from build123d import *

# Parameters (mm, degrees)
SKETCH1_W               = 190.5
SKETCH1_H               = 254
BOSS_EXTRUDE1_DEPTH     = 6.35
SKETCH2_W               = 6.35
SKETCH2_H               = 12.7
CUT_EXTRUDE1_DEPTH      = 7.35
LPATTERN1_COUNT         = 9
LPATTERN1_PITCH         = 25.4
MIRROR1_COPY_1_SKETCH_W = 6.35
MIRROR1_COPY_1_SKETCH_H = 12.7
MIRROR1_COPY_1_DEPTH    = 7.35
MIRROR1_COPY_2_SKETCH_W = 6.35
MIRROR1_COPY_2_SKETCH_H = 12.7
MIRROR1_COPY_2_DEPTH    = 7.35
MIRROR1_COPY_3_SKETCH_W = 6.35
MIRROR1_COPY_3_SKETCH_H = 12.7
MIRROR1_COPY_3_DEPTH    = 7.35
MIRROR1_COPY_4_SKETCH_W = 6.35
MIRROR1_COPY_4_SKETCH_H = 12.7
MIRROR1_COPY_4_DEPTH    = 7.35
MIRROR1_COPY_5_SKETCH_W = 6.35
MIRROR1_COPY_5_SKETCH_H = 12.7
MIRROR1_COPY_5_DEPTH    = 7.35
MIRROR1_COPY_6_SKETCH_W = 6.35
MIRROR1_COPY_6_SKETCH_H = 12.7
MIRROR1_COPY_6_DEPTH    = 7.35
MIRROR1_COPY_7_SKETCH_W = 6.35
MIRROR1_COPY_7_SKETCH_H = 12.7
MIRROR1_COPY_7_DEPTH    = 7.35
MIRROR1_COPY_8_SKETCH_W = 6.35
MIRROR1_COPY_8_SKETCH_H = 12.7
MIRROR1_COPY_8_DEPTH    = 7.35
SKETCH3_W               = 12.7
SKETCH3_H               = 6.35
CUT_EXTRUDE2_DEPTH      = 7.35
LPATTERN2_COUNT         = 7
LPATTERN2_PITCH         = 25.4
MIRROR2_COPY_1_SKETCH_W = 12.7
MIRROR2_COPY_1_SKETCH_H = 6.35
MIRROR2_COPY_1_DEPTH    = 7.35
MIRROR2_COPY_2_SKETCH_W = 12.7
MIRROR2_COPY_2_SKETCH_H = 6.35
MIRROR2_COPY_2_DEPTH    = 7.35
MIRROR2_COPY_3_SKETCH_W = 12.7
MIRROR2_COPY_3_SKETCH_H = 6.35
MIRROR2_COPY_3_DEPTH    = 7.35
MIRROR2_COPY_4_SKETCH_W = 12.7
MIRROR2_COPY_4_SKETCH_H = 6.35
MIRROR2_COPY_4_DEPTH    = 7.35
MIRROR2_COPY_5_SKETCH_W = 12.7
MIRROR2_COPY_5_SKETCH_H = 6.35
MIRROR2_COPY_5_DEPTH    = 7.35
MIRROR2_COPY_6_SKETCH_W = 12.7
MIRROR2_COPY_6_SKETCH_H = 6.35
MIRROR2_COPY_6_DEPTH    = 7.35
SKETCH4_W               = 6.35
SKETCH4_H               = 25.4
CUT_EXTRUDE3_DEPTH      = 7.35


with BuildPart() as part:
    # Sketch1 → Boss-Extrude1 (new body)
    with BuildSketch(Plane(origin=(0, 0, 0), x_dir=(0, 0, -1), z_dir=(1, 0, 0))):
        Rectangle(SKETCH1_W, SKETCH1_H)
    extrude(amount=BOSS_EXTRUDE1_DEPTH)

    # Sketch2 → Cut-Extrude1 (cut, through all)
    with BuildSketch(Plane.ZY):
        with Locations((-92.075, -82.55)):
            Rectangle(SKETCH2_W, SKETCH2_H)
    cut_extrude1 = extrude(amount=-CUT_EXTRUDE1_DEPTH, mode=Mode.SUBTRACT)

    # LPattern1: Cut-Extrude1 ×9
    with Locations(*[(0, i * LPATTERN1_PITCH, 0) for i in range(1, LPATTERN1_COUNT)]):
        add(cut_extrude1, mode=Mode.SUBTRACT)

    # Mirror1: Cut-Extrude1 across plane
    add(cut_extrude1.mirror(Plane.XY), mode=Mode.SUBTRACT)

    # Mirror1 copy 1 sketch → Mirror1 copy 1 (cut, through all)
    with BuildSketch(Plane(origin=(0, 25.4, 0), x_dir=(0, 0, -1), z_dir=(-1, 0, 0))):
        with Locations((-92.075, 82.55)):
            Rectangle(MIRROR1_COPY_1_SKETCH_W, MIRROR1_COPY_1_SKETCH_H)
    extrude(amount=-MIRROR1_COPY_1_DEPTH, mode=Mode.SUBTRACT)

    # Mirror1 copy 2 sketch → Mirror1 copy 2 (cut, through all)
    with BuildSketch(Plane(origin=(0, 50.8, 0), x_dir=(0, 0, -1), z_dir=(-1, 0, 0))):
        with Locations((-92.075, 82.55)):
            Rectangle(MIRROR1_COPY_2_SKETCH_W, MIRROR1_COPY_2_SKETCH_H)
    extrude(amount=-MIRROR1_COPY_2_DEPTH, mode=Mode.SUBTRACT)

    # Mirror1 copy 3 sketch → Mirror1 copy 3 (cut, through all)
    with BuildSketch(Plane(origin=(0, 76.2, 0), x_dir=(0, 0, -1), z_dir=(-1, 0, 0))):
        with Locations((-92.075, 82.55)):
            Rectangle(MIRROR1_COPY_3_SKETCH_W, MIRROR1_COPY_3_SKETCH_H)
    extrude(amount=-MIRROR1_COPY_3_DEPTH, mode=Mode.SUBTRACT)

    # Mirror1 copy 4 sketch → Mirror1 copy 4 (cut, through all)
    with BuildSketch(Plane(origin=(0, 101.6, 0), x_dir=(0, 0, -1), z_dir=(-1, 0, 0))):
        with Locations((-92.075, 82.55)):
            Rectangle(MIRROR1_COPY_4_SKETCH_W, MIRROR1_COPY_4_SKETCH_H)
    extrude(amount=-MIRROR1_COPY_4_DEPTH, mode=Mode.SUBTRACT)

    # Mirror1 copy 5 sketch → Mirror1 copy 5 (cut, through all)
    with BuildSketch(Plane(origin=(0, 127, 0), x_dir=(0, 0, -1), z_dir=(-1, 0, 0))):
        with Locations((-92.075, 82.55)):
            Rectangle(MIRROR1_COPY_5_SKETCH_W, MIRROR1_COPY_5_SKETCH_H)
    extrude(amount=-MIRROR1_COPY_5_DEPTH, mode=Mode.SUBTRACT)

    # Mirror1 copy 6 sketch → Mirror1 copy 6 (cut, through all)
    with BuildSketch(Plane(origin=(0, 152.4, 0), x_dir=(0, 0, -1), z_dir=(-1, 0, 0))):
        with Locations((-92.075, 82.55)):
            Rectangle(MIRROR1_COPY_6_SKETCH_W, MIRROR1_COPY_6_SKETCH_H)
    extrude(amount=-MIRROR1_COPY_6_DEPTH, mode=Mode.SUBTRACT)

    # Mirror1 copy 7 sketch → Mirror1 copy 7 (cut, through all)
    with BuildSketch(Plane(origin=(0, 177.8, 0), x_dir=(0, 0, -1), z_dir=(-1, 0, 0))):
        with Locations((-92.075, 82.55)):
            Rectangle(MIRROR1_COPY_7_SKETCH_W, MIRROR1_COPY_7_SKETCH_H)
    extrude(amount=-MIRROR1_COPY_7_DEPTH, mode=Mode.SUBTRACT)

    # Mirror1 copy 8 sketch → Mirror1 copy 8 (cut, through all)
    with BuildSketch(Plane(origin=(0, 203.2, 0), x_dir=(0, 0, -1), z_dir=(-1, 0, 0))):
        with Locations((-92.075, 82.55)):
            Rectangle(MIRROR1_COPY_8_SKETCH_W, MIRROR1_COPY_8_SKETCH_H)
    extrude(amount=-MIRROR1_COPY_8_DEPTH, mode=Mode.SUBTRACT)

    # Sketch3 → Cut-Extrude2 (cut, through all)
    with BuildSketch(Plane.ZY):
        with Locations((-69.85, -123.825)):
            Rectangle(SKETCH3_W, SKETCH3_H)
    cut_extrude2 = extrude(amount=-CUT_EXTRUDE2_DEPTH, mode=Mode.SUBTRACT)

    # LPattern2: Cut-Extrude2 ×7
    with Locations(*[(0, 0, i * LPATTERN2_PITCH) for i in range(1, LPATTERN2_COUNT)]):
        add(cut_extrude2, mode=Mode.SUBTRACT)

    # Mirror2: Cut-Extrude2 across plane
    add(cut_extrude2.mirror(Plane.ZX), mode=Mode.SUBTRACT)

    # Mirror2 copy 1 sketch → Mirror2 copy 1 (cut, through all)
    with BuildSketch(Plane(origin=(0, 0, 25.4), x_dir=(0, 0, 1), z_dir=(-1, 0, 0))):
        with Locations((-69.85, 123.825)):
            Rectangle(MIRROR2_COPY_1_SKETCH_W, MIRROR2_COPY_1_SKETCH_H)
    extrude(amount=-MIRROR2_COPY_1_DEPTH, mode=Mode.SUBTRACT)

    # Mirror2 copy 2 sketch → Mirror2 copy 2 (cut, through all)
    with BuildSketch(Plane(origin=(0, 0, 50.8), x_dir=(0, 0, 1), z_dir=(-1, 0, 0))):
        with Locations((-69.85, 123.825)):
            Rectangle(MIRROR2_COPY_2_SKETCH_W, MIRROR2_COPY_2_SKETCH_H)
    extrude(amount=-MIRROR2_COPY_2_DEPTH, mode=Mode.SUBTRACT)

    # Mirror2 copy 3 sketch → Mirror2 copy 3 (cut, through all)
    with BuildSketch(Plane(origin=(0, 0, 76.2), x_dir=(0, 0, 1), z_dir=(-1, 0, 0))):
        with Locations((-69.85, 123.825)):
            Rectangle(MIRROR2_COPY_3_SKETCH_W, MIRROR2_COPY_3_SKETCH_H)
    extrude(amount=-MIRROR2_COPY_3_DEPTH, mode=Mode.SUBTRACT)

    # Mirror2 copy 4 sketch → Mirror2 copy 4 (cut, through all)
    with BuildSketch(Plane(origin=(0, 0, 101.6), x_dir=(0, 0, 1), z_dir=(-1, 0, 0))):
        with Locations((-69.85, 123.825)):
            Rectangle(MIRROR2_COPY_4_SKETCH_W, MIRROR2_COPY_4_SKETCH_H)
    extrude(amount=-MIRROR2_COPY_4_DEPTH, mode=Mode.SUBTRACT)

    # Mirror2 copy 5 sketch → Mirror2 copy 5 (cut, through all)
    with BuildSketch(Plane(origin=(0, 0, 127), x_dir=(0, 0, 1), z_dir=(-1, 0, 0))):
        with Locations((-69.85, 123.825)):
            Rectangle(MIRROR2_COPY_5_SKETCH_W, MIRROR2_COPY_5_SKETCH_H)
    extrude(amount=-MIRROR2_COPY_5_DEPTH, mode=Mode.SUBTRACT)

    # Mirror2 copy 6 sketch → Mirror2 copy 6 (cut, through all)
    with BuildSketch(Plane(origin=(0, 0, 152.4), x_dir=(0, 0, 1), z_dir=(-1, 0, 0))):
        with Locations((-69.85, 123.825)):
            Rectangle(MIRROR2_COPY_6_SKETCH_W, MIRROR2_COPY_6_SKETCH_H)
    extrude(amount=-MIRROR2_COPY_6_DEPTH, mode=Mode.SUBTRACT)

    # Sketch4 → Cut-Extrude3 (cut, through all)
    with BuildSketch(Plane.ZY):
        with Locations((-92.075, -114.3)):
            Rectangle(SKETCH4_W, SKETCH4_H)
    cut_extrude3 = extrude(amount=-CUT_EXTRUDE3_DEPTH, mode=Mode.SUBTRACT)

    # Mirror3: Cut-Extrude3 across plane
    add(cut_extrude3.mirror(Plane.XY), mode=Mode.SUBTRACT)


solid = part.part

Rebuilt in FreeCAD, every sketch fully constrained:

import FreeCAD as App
import Part
import Sketcher
from FreeCAD import Vector
Q = App.Units.Quantity


def add_polygon(sketch, points):
    """Adds a closed chain of lines whose ends are joined by coincident constraints."""
    first, n = sketch.GeometryCount, len(points)
    for a, b in zip(points, points[1:] + points[:1]):
        sketch.addGeometry(Part.LineSegment(App.Vector(*a, 0), App.Vector(*b, 0)), False)
    for i in range(n):
        sketch.addConstraint(Sketcher.Constraint("Coincident", first + i, 2, first + (i + 1) % n, 1))

doc = App.newDocument("Part")
params = doc.addObject("Spreadsheet::Sheet", "Params")
for row, (alias, value) in enumerate([
    ("sketch1_width", "10 in"),
    ("sketch1_height", "7.5 in"),
    ("pad1_length", "0.25 in"),
    ("sketch2_width", "0.5 in"),
    ("sketch2_height", "0.25 in"),
    ("linearpattern_pitch", "1 in"),
    ("sketch3_width", "0.5 in"),
    ("sketch3_height", "0.25 in"),
    ("sketch4_width", "0.5 in"),
    ("sketch4_height", "0.25 in"),
    ("sketch5_width", "0.5 in"),
    ("sketch5_height", "0.25 in"),
    ("sketch6_width", "0.5 in"),
    ("sketch6_height", "0.25 in"),
    ("sketch7_width", "0.5 in"),
    ("sketch7_height", "0.25 in"),
    ("sketch8_width", "0.5 in"),
    ("sketch8_height", "0.25 in"),
    ("sketch9_width", "0.5 in"),
    ("sketch9_height", "0.25 in"),
    ("sketch10_width", "0.5 in"),
    ("sketch10_height", "0.25 in"),
    ("sketch11_height", "0.5 in"),
    ("sketch11_width", "0.25 in"),
    ("linearpattern2_pitch", "1 in"),
    ("sketch12_height", "0.5 in"),
    ("sketch12_width", "0.25 in"),
    ("sketch13_height", "0.5 in"),
    ("sketch13_width", "0.25 in"),
    ("sketch14_height", "0.5 in"),
    ("sketch14_width", "0.25 in"),
    ("sketch15_height", "0.5 in"),
    ("sketch15_width", "0.25 in"),
    ("sketch16_height", "0.5 in"),
    ("sketch16_width", "0.25 in"),
    ("sketch17_height", "0.5 in"),
    ("sketch17_width", "0.25 in"),
    ("sketch18_width", "1 in"),
    ("sketch18_height", "0.25 in"),
], start=1):
    params.set(f"A{row}", alias)
    params.set(f"B{row}", "=" + value)
    params.setAlias(f"B{row}", alias)

body = doc.addObject("PartDesign::Body", "Body")

# Sketch on YZ plane
sketch1 = doc.addObject("Sketcher::SketchObject", "Sketch")
body.addObject(sketch1)
sketch1.AttachmentSupport = (doc.YZ_Plane, [""])
sketch1.MapMode = "FlatFace"
add_polygon(sketch1, [(127, 95), (-127, 95), (-127, -95), (127, -95)])  # lines 0-3
sketch1.addConstraint([
    Sketcher.Constraint("Horizontal", 0),
    Sketcher.Constraint("Vertical", 1),
    Sketcher.Constraint("Horizontal", 2),
    Sketcher.Constraint("Vertical", 3),
    Sketcher.Constraint("Symmetric", 0, 2, 2, 2, -1, 1),
    Sketcher.Constraint("DistanceX", 0, 2, 0, 1, Q("10 in")),
    Sketcher.Constraint("DistanceY", 1, 2, 1, 1, Q("7.5 in")),
])
sketch1.setExpression("Constraints[9]", "Params.sketch1_width")
sketch1.setExpression("Constraints[10]", "Params.sketch1_height")
pad1 = doc.addObject("PartDesign::Pad", "Pad")
body.addObject(pad1)
pad1.Profile = sketch1
pad1.setExpression("Length", "Params.pad1_length")

# Sketch on YZ plane
sketch2 = doc.addObject("Sketcher::SketchObject", "Sketch001")
body.addObject(sketch2)
sketch2.AttachmentSupport = (doc.YZ_Plane, [""])
sketch2.MapMode = "FlatFace"
add_polygon(sketch2, [(-76, -95), (-89, -95), (-89, -89), (-76, -89)])  # lines 0-3
sketch2.addConstraint([
    Sketcher.Constraint("Horizontal", 0),
    Sketcher.Constraint("Vertical", 1),
    Sketcher.Constraint("Horizontal", 2),
    Sketcher.Constraint("Vertical", 3),
    Sketcher.Constraint("DistanceX", 0, 2, 0, 1, Q("0.5 in")),
    Sketcher.Constraint("DistanceX", 2, 2, -1, 1, Q("3 in")),
    Sketcher.Constraint("DistanceY", 1, 1, 1, 2, Q("0.25 in")),
    Sketcher.Constraint("DistanceY", 1, 2, -1, 1, Q("3.5 in")),
])
sketch2.setExpression("Constraints[8]", "Params.sketch2_width")
sketch2.setExpression("Constraints[10]", "Params.sketch2_height")
pocket1 = doc.addObject("PartDesign::Pocket", "Pocket")
body.addObject(pocket1)
pocket1.Profile = sketch2
pocket1.Type = "ThroughAll"
pocket1.Reversed = True
doc.recompute()

linearpattern = doc.addObject("PartDesign::LinearPattern", "LinearPattern")
body.addObject(linearpattern)
linearpattern.Originals = [pocket1]
linearpattern.Direction = (doc.Y_Axis, [""])
linearpattern.Mode = "offset"
linearpattern.setExpression("Offset", "Params.linearpattern_pitch")
linearpattern.Occurrences = 9
body.Tip = linearpattern
doc.recompute()

mirrored = doc.addObject("PartDesign::Mirrored", "Mirrored")
body.addObject(mirrored)
mirrored.Originals = [pocket1]
mirrored.MirrorPlane = (doc.XY_Plane, [""])
body.Tip = mirrored

# Sketch on YZ plane
sketch3 = doc.addObject("Sketcher::SketchObject", "Sketch002")
body.addObject(sketch3)
sketch3.AttachmentSupport = (doc.YZ_Plane, [""])
sketch3.MapMode = "FlatFace"
add_polygon(sketch3, [(-64, 95), (-51, 95), (-51, 89), (-64, 89)])  # lines 0-3
sketch3.addConstraint([
    Sketcher.Constraint("Horizontal", 0),
    Sketcher.Constraint("Vertical", 1),
    Sketcher.Constraint("Horizontal", 2),
    Sketcher.Constraint("Vertical", 3),
    Sketcher.Constraint("DistanceX", 0, 1, 0, 2, Q("0.5 in")),
    Sketcher.Constraint("DistanceX", 0, 2, -1, 1, Q("2 in")),
    Sketcher.Constraint("DistanceY", 1, 2, 1, 1, Q("0.25 in")),
    Sketcher.Constraint("DistanceY", -1, 1, 1, 2, Q("3.5 in")),
])
sketch3.setExpression("Constraints[8]", "Params.sketch3_width")
sketch3.setExpression("Constraints[10]", "Params.sketch3_height")
pocket2 = doc.addObject("PartDesign::Pocket", "Pocket001")
body.addObject(pocket2)
pocket2.Profile = sketch3
pocket2.Type = "ThroughAll"
pocket2.Reversed = True

# Sketch on YZ plane
sketch4 = doc.addObject("Sketcher::SketchObject", "Sketch003")
body.addObject(sketch4)
sketch4.AttachmentSupport = (doc.YZ_Plane, [""])
sketch4.MapMode = "FlatFace"
add_polygon(sketch4, [(-38, 95), (-25, 95), (-25, 89), (-38, 89)])  # lines 0-3
sketch4.addConstraint([
    Sketcher.Constraint("Horizontal", 0),
    Sketcher.Constraint("Vertical", 1),
    Sketcher.Constraint("Horizontal", 2),
    Sketcher.Constraint("Vertical", 3),
    Sketcher.Constraint("DistanceX", 0, 1, 0, 2, Q("0.5 in")),
    Sketcher.Constraint("DistanceX", 0, 2, -1, 1, Q("1 in")),
    Sketcher.Constraint("DistanceY", 1, 2, 1, 1, Q("0.25 in")),
    Sketcher.Constraint("DistanceY", -1, 1, 1, 2, Q("3.5 in")),
])
sketch4.setExpression("Constraints[8]", "Params.sketch4_width")
sketch4.setExpression("Constraints[10]", "Params.sketch4_height")
pocket3 = doc.addObject("PartDesign::Pocket", "Pocket002")
body.addObject(pocket3)
pocket3.Profile = sketch4
pocket3.Type = "ThroughAll"
pocket3.Reversed = True

# Sketch on YZ plane
sketch5 = doc.addObject("Sketcher::SketchObject", "Sketch004")
body.addObject(sketch5)
sketch5.AttachmentSupport = (doc.YZ_Plane, [""])
sketch5.MapMode = "FlatFace"
add_polygon(sketch5, [(-13, 95), (0, 95), (0, 89), (-13, 89)])  # lines 0-3
sketch5.addConstraint([
    Sketcher.Constraint("Horizontal", 0),
    Sketcher.Constraint("Vertical", 1),
    Sketcher.Constraint("Horizontal", 2),
    Sketcher.Constraint("Vertical", 3),
    Sketcher.Constraint("PointOnObject", 0, 2, -2),
    Sketcher.Constraint("DistanceX", 0, 1, 0, 2, Q("0.5 in")),
    Sketcher.Constraint("DistanceY", 1, 2, 1, 1, Q("0.25 in")),
    Sketcher.Constraint("DistanceY", -1, 1, 1, 2, Q("3.5 in")),
])
sketch5.setExpression("Constraints[9]", "Params.sketch5_width")
sketch5.setExpression("Constraints[10]", "Params.sketch5_height")
pocket4 = doc.addObject("PartDesign::Pocket", "Pocket003")
body.addObject(pocket4)
pocket4.Profile = sketch5
pocket4.Type = "ThroughAll"
pocket4.Reversed = True

# Sketch on YZ plane
sketch6 = doc.addObject("Sketcher::SketchObject", "Sketch005")
body.addObject(sketch6)
sketch6.AttachmentSupport = (doc.YZ_Plane, [""])
sketch6.MapMode = "FlatFace"
add_polygon(sketch6, [(13, 95), (25, 95), (25, 89), (13, 89)])  # lines 0-3
sketch6.addConstraint([
    Sketcher.Constraint("Horizontal", 0),
    Sketcher.Constraint("Vertical", 1),
    Sketcher.Constraint("Horizontal", 2),
    Sketcher.Constraint("Vertical", 3),
    Sketcher.Constraint("DistanceX", 0, 1, 0, 2, Q("0.5 in")),
    Sketcher.Constraint("DistanceX", -1, 1, 0, 2, Q("1 in")),
    Sketcher.Constraint("DistanceY", 1, 2, 1, 1, Q("0.25 in")),
    Sketcher.Constraint("DistanceY", -1, 1, 1, 2, Q("3.5 in")),
])
sketch6.setExpression("Constraints[8]", "Params.sketch6_width")
sketch6.setExpression("Constraints[10]", "Params.sketch6_height")
pocket5 = doc.addObject("PartDesign::Pocket", "Pocket004")
body.addObject(pocket5)
pocket5.Profile = sketch6
pocket5.Type = "ThroughAll"
pocket5.Reversed = True

# Sketch on YZ plane
sketch7 = doc.addObject("Sketcher::SketchObject", "Sketch006")
body.addObject(sketch7)
sketch7.AttachmentSupport = (doc.YZ_Plane, [""])
sketch7.MapMode = "FlatFace"
add_polygon(sketch7, [(38, 95), (51, 95), (51, 89), (38, 89)])  # lines 0-3
sketch7.addConstraint([
    Sketcher.Constraint("Horizontal", 0),
    Sketcher.Constraint("Vertical", 1),
    Sketcher.Constraint("Horizontal", 2),
    Sketcher.Constraint("Vertical", 3),
    Sketcher.Constraint("DistanceX", 0, 1, 0, 2, Q("0.5 in")),
    Sketcher.Constraint("DistanceX", -1, 1, 0, 2, Q("2 in")),
    Sketcher.Constraint("DistanceY", 1, 2, 1, 1, Q("0.25 in")),
    Sketcher.Constraint("DistanceY", -1, 1, 1, 2, Q("3.5 in")),
])
sketch7.setExpression("Constraints[8]", "Params.sketch7_width")
sketch7.setExpression("Constraints[10]", "Params.sketch7_height")
pocket6 = doc.addObject("PartDesign::Pocket", "Pocket005")
body.addObject(pocket6)
pocket6.Profile = sketch7
pocket6.Type = "ThroughAll"
pocket6.Reversed = True

# Sketch on YZ plane
sketch8 = doc.addObject("Sketcher::SketchObject", "Sketch007")
body.addObject(sketch8)
sketch8.AttachmentSupport = (doc.YZ_Plane, [""])
sketch8.MapMode = "FlatFace"
add_polygon(sketch8, [(64, 95), (76, 95), (76, 89), (64, 89)])  # lines 0-3
sketch8.addConstraint([
    Sketcher.Constraint("Horizontal", 0),
    Sketcher.Constraint("Vertical", 1),
    Sketcher.Constraint("Horizontal", 2),
    Sketcher.Constraint("Vertical", 3),
    Sketcher.Constraint("DistanceX", 0, 1, 0, 2, Q("0.5 in")),
    Sketcher.Constraint("DistanceX", -1, 1, 0, 2, Q("3 in")),
    Sketcher.Constraint("DistanceY", 1, 2, 1, 1, Q("0.25 in")),
    Sketcher.Constraint("DistanceY", -1, 1, 1, 2, Q("3.5 in")),
])
sketch8.setExpression("Constraints[8]", "Params.sketch8_width")
sketch8.setExpression("Constraints[10]", "Params.sketch8_height")
pocket7 = doc.addObject("PartDesign::Pocket", "Pocket006")
body.addObject(pocket7)
pocket7.Profile = sketch8
pocket7.Type = "ThroughAll"
pocket7.Reversed = True

# Sketch on YZ plane
sketch9 = doc.addObject("Sketcher::SketchObject", "Sketch008")
body.addObject(sketch9)
sketch9.AttachmentSupport = (doc.YZ_Plane, [""])
sketch9.MapMode = "FlatFace"
add_polygon(sketch9, [(89, 95), (102, 95), (102, 89), (89, 89)])  # lines 0-3
sketch9.addConstraint([
    Sketcher.Constraint("Horizontal", 0),
    Sketcher.Constraint("Vertical", 1),
    Sketcher.Constraint("Horizontal", 2),
    Sketcher.Constraint("Vertical", 3),
    Sketcher.Constraint("DistanceX", 0, 1, 0, 2, Q("0.5 in")),
    Sketcher.Constraint("DistanceX", -1, 1, 0, 2, Q("4 in")),
    Sketcher.Constraint("DistanceY", 1, 2, 1, 1, Q("0.25 in")),
    Sketcher.Constraint("DistanceY", -1, 1, 1, 2, Q("3.5 in")),
])
sketch9.setExpression("Constraints[8]", "Params.sketch9_width")
sketch9.setExpression("Constraints[10]", "Params.sketch9_height")
pocket8 = doc.addObject("PartDesign::Pocket", "Pocket007")
body.addObject(pocket8)
pocket8.Profile = sketch9
pocket8.Type = "ThroughAll"
pocket8.Reversed = True

# Sketch on YZ plane
sketch10 = doc.addObject("Sketcher::SketchObject", "Sketch009")
body.addObject(sketch10)
sketch10.AttachmentSupport = (doc.YZ_Plane, [""])
sketch10.MapMode = "FlatFace"
add_polygon(sketch10, [(114, 95), (127, 95), (127, 89), (114, 89)])  # lines 0-3
sketch10.addConstraint([
    Sketcher.Constraint("Horizontal", 0),
    Sketcher.Constraint("Vertical", 1),
    Sketcher.Constraint("Horizontal", 2),
    Sketcher.Constraint("Vertical", 3),
    Sketcher.Constraint("DistanceX", 0, 1, 0, 2, Q("0.5 in")),
    Sketcher.Constraint("DistanceX", -1, 1, 0, 2, Q("5 in")),
    Sketcher.Constraint("DistanceY", 1, 2, 1, 1, Q("0.25 in")),
    Sketcher.Constraint("DistanceY", -1, 1, 1, 2, Q("3.5 in")),
])
sketch10.setExpression("Constraints[8]", "Params.sketch10_width")
sketch10.setExpression("Constraints[10]", "Params.sketch10_height")
pocket9 = doc.addObject("PartDesign::Pocket", "Pocket008")
body.addObject(pocket9)
pocket9.Profile = sketch10
pocket9.Type = "ThroughAll"
pocket9.Reversed = True

# Sketch on YZ plane
sketch11 = doc.addObject("Sketcher::SketchObject", "Sketch010")
body.addObject(sketch11)
sketch11.AttachmentSupport = (doc.YZ_Plane, [""])
sketch11.MapMode = "FlatFace"
add_polygon(sketch11, [(-121, -76), (-127, -76), (-127, -64), (-121, -64)])  # lines 0-3
sketch11.addConstraint([
    Sketcher.Constraint("Horizontal", 0),
    Sketcher.Constraint("Vertical", 1),
    Sketcher.Constraint("Horizontal", 2),
    Sketcher.Constraint("Vertical", 3),
    Sketcher.Constraint("DistanceY", 1, 1, 1, 2, Q("0.5 in")),
    Sketcher.Constraint("DistanceX", 0, 2, -1, 1, Q("5 in")),
    Sketcher.Constraint("DistanceY", 0, 2, -1, 1, Q("3 in")),
    Sketcher.Constraint("DistanceX", 0, 2, 0, 1, Q("0.25 in")),
])
sketch11.setExpression("Constraints[8]", "Params.sketch11_height")
sketch11.setExpression("Constraints[11]", "Params.sketch11_width")
pocket10 = doc.addObject("PartDesign::Pocket", "Pocket009")
body.addObject(pocket10)
pocket10.Profile = sketch11
pocket10.Type = "ThroughAll"
pocket10.Reversed = True
doc.recompute()

linearpattern2 = doc.addObject("PartDesign::LinearPattern", "LinearPattern001")
body.addObject(linearpattern2)
linearpattern2.Originals = [pocket10]
linearpattern2.Direction = (doc.Z_Axis, [""])
linearpattern2.Mode = "offset"
linearpattern2.setExpression("Offset", "Params.linearpattern2_pitch")
linearpattern2.Occurrences = 7
body.Tip = linearpattern2
doc.recompute()

mirrored2 = doc.addObject("PartDesign::Mirrored", "Mirrored001")
body.addObject(mirrored2)
mirrored2.Originals = [pocket10]
mirrored2.MirrorPlane = (doc.XZ_Plane, [""])
body.Tip = mirrored2

# Sketch on YZ plane
sketch12 = doc.addObject("Sketcher::SketchObject", "Sketch011")
body.addObject(sketch12)
sketch12.AttachmentSupport = (doc.YZ_Plane, [""])
sketch12.MapMode = "FlatFace"
add_polygon(sketch12, [(127, -51), (121, -51), (121, -38), (127, -38)])  # lines 0-3
sketch12.addConstraint([
    Sketcher.Constraint("Horizontal", 0),
    Sketcher.Constraint("Vertical", 1),
    Sketcher.Constraint("Horizontal", 2),
    Sketcher.Constraint("Vertical", 3),
    Sketcher.Constraint("DistanceY", 1, 1, 1, 2, Q("0.5 in")),
    Sketcher.Constraint("DistanceY", 0, 2, -1, 1, Q("2 in")),
    Sketcher.Constraint("DistanceX", -1, 1, 2, 2, Q("5 in")),
    Sketcher.Constraint("DistanceX", 0, 2, 0, 1, Q("0.25 in")),
])
sketch12.setExpression("Constraints[8]", "Params.sketch12_height")
sketch12.setExpression("Constraints[11]", "Params.sketch12_width")
pocket11 = doc.addObject("PartDesign::Pocket", "Pocket010")
body.addObject(pocket11)
pocket11.Profile = sketch12
pocket11.Type = "ThroughAll"
pocket11.Reversed = True

# Sketch on YZ plane
sketch13 = doc.addObject("Sketcher::SketchObject", "Sketch012")
body.addObject(sketch13)
sketch13.AttachmentSupport = (doc.YZ_Plane, [""])
sketch13.MapMode = "FlatFace"
add_polygon(sketch13, [(127, -25), (121, -25), (121, -13), (127, -13)])  # lines 0-3
sketch13.addConstraint([
    Sketcher.Constraint("Horizontal", 0),
    Sketcher.Constraint("Vertical", 1),
    Sketcher.Constraint("Horizontal", 2),
    Sketcher.Constraint("Vertical", 3),
    Sketcher.Constraint("DistanceY", 1, 1, 1, 2, Q("0.5 in")),
    Sketcher.Constraint("DistanceY", 0, 2, -1, 1, Q("1 in")),
    Sketcher.Constraint("DistanceX", -1, 1, 2, 2, Q("5 in")),
    Sketcher.Constraint("DistanceX", 0, 2, 0, 1, Q("0.25 in")),
])
sketch13.setExpression("Constraints[8]", "Params.sketch13_height")
sketch13.setExpression("Constraints[11]", "Params.sketch13_width")
pocket12 = doc.addObject("PartDesign::Pocket", "Pocket011")
body.addObject(pocket12)
pocket12.Profile = sketch13
pocket12.Type = "ThroughAll"
pocket12.Reversed = True

# Sketch on YZ plane
sketch14 = doc.addObject("Sketcher::SketchObject", "Sketch013")
body.addObject(sketch14)
sketch14.AttachmentSupport = (doc.YZ_Plane, [""])
sketch14.MapMode = "FlatFace"
add_polygon(sketch14, [(127, 0), (121, 0), (121, 13), (127, 13)])  # lines 0-3
sketch14.addConstraint([
    Sketcher.Constraint("Horizontal", 0),
    Sketcher.Constraint("Vertical", 1),
    Sketcher.Constraint("Horizontal", 2),
    Sketcher.Constraint("Vertical", 3),
    Sketcher.Constraint("PointOnObject", 0, 2, -1),
    Sketcher.Constraint("DistanceY", 1, 1, 1, 2, Q("0.5 in")),
    Sketcher.Constraint("DistanceX", -1, 1, 2, 2, Q("5 in")),
    Sketcher.Constraint("DistanceX", 0, 2, 0, 1, Q("0.25 in")),
])
sketch14.setExpression("Constraints[9]", "Params.sketch14_height")
sketch14.setExpression("Constraints[11]", "Params.sketch14_width")
pocket13 = doc.addObject("PartDesign::Pocket", "Pocket012")
body.addObject(pocket13)
pocket13.Profile = sketch14
pocket13.Type = "ThroughAll"
pocket13.Reversed = True

# Sketch on YZ plane
sketch15 = doc.addObject("Sketcher::SketchObject", "Sketch014")
body.addObject(sketch15)
sketch15.AttachmentSupport = (doc.YZ_Plane, [""])
sketch15.MapMode = "FlatFace"
add_polygon(sketch15, [(127, 25), (121, 25), (121, 38), (127, 38)])  # lines 0-3
sketch15.addConstraint([
    Sketcher.Constraint("Horizontal", 0),
    Sketcher.Constraint("Vertical", 1),
    Sketcher.Constraint("Horizontal", 2),
    Sketcher.Constraint("Vertical", 3),
    Sketcher.Constraint("DistanceY", 1, 1, 1, 2, Q("0.5 in")),
    Sketcher.Constraint("DistanceY", -1, 1, 0, 2, Q("1 in")),
    Sketcher.Constraint("DistanceX", -1, 1, 2, 2, Q("5 in")),
    Sketcher.Constraint("DistanceX", 0, 2, 0, 1, Q("0.25 in")),
])
sketch15.setExpression("Constraints[8]", "Params.sketch15_height")
sketch15.setExpression("Constraints[11]", "Params.sketch15_width")
pocket14 = doc.addObject("PartDesign::Pocket", "Pocket013")
body.addObject(pocket14)
pocket14.Profile = sketch15
pocket14.Type = "ThroughAll"
pocket14.Reversed = True

# Sketch on YZ plane
sketch16 = doc.addObject("Sketcher::SketchObject", "Sketch015")
body.addObject(sketch16)
sketch16.AttachmentSupport = (doc.YZ_Plane, [""])
sketch16.MapMode = "FlatFace"
add_polygon(sketch16, [(127, 51), (121, 51), (121, 64), (127, 64)])  # lines 0-3
sketch16.addConstraint([
    Sketcher.Constraint("Horizontal", 0),
    Sketcher.Constraint("Vertical", 1),
    Sketcher.Constraint("Horizontal", 2),
    Sketcher.Constraint("Vertical", 3),
    Sketcher.Constraint("DistanceY", 1, 1, 1, 2, Q("0.5 in")),
    Sketcher.Constraint("DistanceY", -1, 1, 0, 2, Q("2 in")),
    Sketcher.Constraint("DistanceX", -1, 1, 2, 2, Q("5 in")),
    Sketcher.Constraint("DistanceX", 0, 2, 0, 1, Q("0.25 in")),
])
sketch16.setExpression("Constraints[8]", "Params.sketch16_height")
sketch16.setExpression("Constraints[11]", "Params.sketch16_width")
pocket15 = doc.addObject("PartDesign::Pocket", "Pocket014")
body.addObject(pocket15)
pocket15.Profile = sketch16
pocket15.Type = "ThroughAll"
pocket15.Reversed = True

# Sketch on YZ plane
sketch17 = doc.addObject("Sketcher::SketchObject", "Sketch016")
body.addObject(sketch17)
sketch17.AttachmentSupport = (doc.YZ_Plane, [""])
sketch17.MapMode = "FlatFace"
add_polygon(sketch17, [(127, 76), (121, 76), (121, 89), (127, 89)])  # lines 0-3
sketch17.addConstraint([
    Sketcher.Constraint("Horizontal", 0),
    Sketcher.Constraint("Vertical", 1),
    Sketcher.Constraint("Horizontal", 2),
    Sketcher.Constraint("Vertical", 3),
    Sketcher.Constraint("DistanceY", 1, 1, 1, 2, Q("0.5 in")),
    Sketcher.Constraint("DistanceY", -1, 1, 0, 2, Q("3 in")),
    Sketcher.Constraint("DistanceX", -1, 1, 2, 2, Q("5 in")),
    Sketcher.Constraint("DistanceX", 0, 2, 0, 1, Q("0.25 in")),
])
sketch17.setExpression("Constraints[8]", "Params.sketch17_height")
sketch17.setExpression("Constraints[11]", "Params.sketch17_width")
pocket16 = doc.addObject("PartDesign::Pocket", "Pocket015")
body.addObject(pocket16)
pocket16.Profile = sketch17
pocket16.Type = "ThroughAll"
pocket16.Reversed = True

# Sketch on YZ plane
sketch18 = doc.addObject("Sketcher::SketchObject", "Sketch017")
body.addObject(sketch18)
sketch18.AttachmentSupport = (doc.YZ_Plane, [""])
sketch18.MapMode = "FlatFace"
add_polygon(sketch18, [(-102, -95), (-127, -95), (-127, -89), (-102, -89)])  # lines 0-3
sketch18.addConstraint([
    Sketcher.Constraint("Horizontal", 0),
    Sketcher.Constraint("Vertical", 1),
    Sketcher.Constraint("Horizontal", 2),
    Sketcher.Constraint("Vertical", 3),
    Sketcher.Constraint("DistanceX", 0, 2, 0, 1, Q("1 in")),
    Sketcher.Constraint("DistanceX", 0, 2, -1, 1, Q("5 in")),
    Sketcher.Constraint("DistanceY", 1, 1, 1, 2, Q("0.25 in")),
    Sketcher.Constraint("DistanceY", 1, 2, -1, 1, Q("3.5 in")),
])
sketch18.setExpression("Constraints[8]", "Params.sketch18_width")
sketch18.setExpression("Constraints[10]", "Params.sketch18_height")
pocket17 = doc.addObject("PartDesign::Pocket", "Pocket016")
body.addObject(pocket17)
pocket17.Profile = sketch18
pocket17.Type = "ThroughAll"
pocket17.Reversed = True
doc.recompute()

mirrored3 = doc.addObject("PartDesign::Mirrored", "Mirrored002")
body.addObject(mirrored3)
mirrored3.Originals = [pocket17]
mirrored3.MirrorPlane = (doc.XY_Plane, [""])
body.Tip = mirrored3

doc.recompute()
